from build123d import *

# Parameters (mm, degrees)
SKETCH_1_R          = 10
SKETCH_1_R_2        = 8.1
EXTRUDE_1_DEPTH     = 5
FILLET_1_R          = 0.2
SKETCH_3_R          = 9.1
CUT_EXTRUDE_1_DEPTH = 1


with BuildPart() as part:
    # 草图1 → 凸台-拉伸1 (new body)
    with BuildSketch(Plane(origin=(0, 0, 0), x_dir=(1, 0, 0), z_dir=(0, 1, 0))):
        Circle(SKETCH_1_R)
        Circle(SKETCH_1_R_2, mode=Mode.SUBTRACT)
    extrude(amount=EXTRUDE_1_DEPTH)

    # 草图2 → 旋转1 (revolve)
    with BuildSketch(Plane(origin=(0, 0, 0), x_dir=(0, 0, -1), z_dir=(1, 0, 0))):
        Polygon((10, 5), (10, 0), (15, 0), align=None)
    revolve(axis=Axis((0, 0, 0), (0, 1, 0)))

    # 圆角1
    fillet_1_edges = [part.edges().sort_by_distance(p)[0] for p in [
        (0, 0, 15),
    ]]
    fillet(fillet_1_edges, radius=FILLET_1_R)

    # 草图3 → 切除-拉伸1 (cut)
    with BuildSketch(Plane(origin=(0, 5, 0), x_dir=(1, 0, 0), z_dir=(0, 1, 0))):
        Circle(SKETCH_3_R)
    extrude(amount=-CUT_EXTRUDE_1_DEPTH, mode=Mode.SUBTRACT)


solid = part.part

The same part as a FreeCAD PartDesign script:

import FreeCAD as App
import Part
import Sketcher


def edges_at(feature, points):
    """Names of the edges that pass closest to the given points."""
    edges = feature.Shape.Edges
    near = lambda p: min(range(len(edges)), key=lambda i: edges[i].distToShape(Part.Vertex(*p))[0])
    return sorted({f"Edge{near(p) + 1}" for p in points})

doc = App.newDocument("Part")
body = doc.addObject("PartDesign::Body", "Body")

# Sketch on XZ plane
sketch1 = body.newObject("Sketcher::SketchObject", "Sketch")
sketch1.AttachmentSupport = (doc.getObject("XZ_Plane"), [""])
sketch1.MapMode = "FlatFace"
sketch1.addGeometry([
    Part.Circle(App.Vector(0, 0, 0), App.Vector(0, 0, 1), 10),
    Part.Circle(App.Vector(0, 0, 0), App.Vector(0, 0, 1), 8.1),
], False)
sketch1.addConstraint([
    Sketcher.Constraint("Coincident", 0, 3, -1, 1),
    Sketcher.Constraint("Coincident", 1, 3, -1, 1),
    Sketcher.Constraint("Diameter", 0, 20.0),
    Sketcher.Constraint("Diameter", 1, 16.2),
])
pad1 = body.newObject("PartDesign::Pad", "Pad")
pad1.Profile = sketch1
pad1.Length = 5
pad1.Reversed = True

# Sketch on YZ plane
sketch2 = body.newObject("Sketcher::SketchObject", "Sketch001")
sketch2.AttachmentSupport = (doc.getObject("YZ_Plane"), [""])
sketch2.MapMode = "FlatFace"
sketch2.addGeometry([
    Part.LineSegment(App.Vector(5, -10, 0), App.Vector(0, -10, 0)),
    Part.LineSegment(App.Vector(0, -10, 0), App.Vector(0, -15, 0)),
    Part.LineSegment(App.Vector(0, -15, 0), App.Vector(5, -10, 0)),
], False)
sketch2.addConstraint([
    Sketcher.Constraint("Coincident", 0, 2, 1, 1),
    Sketcher.Constraint("Coincident", 1, 2, 2, 1),
    Sketcher.Constraint("Coincident", 2, 2, 0, 1),
    Sketcher.Constraint("Horizontal", 0),
    Sketcher.Constraint("Vertical", 1),
    Sketcher.Constraint("PointOnObject", 0, 2, -2),
    Sketcher.Constraint("Equal", 0, 1),
    Sketcher.Constraint("DistanceX", 0, 2, 0, 1, 5.0),
    Sketcher.Constraint("DistanceY", 0, 2, -1, 1, 10.0),
])
revolution = body.newObject("PartDesign::Revolution", "Revolution")
revolution.Profile = sketch2
revolution.ReferenceAxis = (sketch2, ["H_Axis"])
revolution.Angle = 360
doc.recompute()

fillet = body.newObject("PartDesign::Fillet", "Fillet")
fillet.Base = (revolution, edges_at(revolution, [(0, 0, 15)]))
fillet.Radius = 0.2

# Sketch on XZ plane
sketch3 = body.newObject("Sketcher::SketchObject", "Sketch002")
sketch3.AttachmentSupport = (doc.getObject("XZ_Plane"), [""])
sketch3.MapMode = "FlatFace"
sketch3.AttachmentOffset = App.Placement(App.Vector(0, 0, -5), App.Rotation())
sketch3.addGeometry(Part.Circle(App.Vector(0, 0, 0), App.Vector(0, 0, 1), 9.1), False)
sketch3.addConstraint([
    Sketcher.Constraint("Coincident", 0, 3, -1, 1),
    Sketcher.Constraint("Diameter", 0, 18.2),
])
pocket1 = body.newObject("PartDesign::Pocket", "Pocket")
pocket1.Profile = sketch3
pocket1.Length = 1
pocket1.Reversed = True

doc.recompute()
